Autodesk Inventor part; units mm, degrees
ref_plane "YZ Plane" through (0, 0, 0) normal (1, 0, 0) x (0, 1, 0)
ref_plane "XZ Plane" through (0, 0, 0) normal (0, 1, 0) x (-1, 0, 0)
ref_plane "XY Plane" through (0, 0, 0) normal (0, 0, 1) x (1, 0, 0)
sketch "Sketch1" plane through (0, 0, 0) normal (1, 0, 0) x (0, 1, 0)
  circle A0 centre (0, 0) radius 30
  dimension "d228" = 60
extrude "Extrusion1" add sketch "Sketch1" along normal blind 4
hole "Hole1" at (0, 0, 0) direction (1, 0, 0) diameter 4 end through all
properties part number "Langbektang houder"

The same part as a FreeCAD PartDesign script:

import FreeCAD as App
import Part
import Sketcher
from FreeCAD import Vector
Q = App.Units.Quantity

doc = App.newDocument("Part")
body = doc.addObject("PartDesign::Body", "Body")

# Sketch on YZ plane
sketch1 = doc.addObject("Sketcher::SketchObject", "Sketch")
body.addObject(sketch1)
sketch1.AttachmentSupport = (doc.YZ_Plane, [""])
sketch1.MapMode = "FlatFace"
sketch1.addGeometry(Part.Circle(Vector(0, 0, 0), Vector(0, 0, 1), 30), False)
sketch1.addConstraint([
    Sketcher.Constraint("Coincident", 0, 3, -1, 1),
    Sketcher.Constraint("Diameter", 0, Q("60 mm")),
])
pad1 = doc.addObject("PartDesign::Pad", "Pad")
body.addObject(pad1)
pad1.Profile = sketch1
pad1.Length = 4

# Sketch on YZ plane
sketch2 = doc.addObject("Sketcher::SketchObject", "Sketch001")
body.addObject(sketch2)
sketch2.AttachmentSupport = (doc.YZ_Plane, [""])
sketch2.MapMode = "FlatFace"
sketch2.addGeometry(Part.Circle(Vector(0, 0, 0), Vector(0, 0, 1), 2), False)
sketch2.addConstraint([
    Sketcher.Constraint("Coincident", 0, 3, -1, 1),
    Sketcher.Constraint("Diameter", 0, Q("4 mm")),
])
doc.recompute()
hole = doc.addObject("PartDesign::Hole", "Hole")
body.addObject(hole)
hole.Profile = sketch2
hole.ThreadType = "None"
hole.Diameter = 4
hole.DepthType = "ThroughAll"
hole.Reversed = True

doc.recompute()
